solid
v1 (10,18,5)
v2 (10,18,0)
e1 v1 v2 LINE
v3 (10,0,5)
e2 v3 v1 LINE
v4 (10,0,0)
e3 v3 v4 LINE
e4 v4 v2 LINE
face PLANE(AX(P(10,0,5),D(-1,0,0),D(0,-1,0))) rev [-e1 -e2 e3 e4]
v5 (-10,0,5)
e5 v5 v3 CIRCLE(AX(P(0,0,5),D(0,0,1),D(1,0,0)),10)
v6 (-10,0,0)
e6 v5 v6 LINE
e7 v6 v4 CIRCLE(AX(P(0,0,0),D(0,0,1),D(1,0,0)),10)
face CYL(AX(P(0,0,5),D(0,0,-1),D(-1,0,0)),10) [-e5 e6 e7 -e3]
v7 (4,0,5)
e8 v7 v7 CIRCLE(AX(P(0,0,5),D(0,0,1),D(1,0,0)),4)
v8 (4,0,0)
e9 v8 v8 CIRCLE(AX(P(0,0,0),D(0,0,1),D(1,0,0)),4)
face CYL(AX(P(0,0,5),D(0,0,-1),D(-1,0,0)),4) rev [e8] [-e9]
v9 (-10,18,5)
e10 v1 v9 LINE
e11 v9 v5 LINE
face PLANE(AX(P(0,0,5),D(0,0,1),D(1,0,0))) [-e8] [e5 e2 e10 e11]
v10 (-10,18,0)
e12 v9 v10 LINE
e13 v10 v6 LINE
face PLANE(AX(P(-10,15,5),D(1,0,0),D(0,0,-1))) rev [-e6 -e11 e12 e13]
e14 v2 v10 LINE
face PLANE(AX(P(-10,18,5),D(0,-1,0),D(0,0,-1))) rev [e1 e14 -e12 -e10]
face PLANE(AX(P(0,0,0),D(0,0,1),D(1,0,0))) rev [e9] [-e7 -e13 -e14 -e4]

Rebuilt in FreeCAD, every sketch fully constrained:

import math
import FreeCAD as App
import Part
import Sketcher

V = App.Vector
Q = App.Units.Quantity

doc = App.newDocument("Part")
body = doc.addObject("PartDesign::Body", "Body")

sketch1 = body.newObject("Sketcher::SketchObject", "Sketch")
sketch1.AttachmentSupport = (doc.getObject("XY_Plane"), [""])
sketch1.MapMode = "FlatFace"
sketch1.addGeometry([
    Part.ArcOfCircle(Part.Circle(V(0, 0, 0), V(0, 0, 1), 10), math.radians(180), math.radians(360)),
    Part.LineSegment(V(10, 0, 0), V(10, 18, 0)),
    Part.LineSegment(V(10, 18, 0), V(-10, 18, 0)),
    Part.LineSegment(V(-10, 18, 0), V(-10, 0, 0)),
    Part.Circle(V(0, 0, 0), V(0, 0, 1), 4),
], False)
sketch1.addConstraint([
    Sketcher.Constraint("Tangent", 0, 2, 1, 1),
    Sketcher.Constraint("Coincident", 1, 2, 2, 1),
    Sketcher.Constraint("Coincident", 2, 2, 3, 1),
    Sketcher.Constraint("Tangent", 3, 2, 0, 1),
    Sketcher.Constraint("Vertical", 1),
    Sketcher.Constraint("Horizontal", 2),
    Sketcher.Constraint("Vertical", 3),
    Sketcher.Constraint("Coincident", 0, 3, -1, 1),
    Sketcher.Constraint("Coincident", 4, 3, -1, 1),
    Sketcher.Constraint("Diameter", 4, Q("8 mm")),
    Sketcher.Constraint("Radius", 0, Q("10 mm")),
    Sketcher.Constraint("DistanceY", 1, 1, 1, 2, Q("18 mm")),
])
pad1 = body.newObject("PartDesign::Pad", "Pad")
pad1.Profile = sketch1
pad1.Length = 5

doc.recompute()
